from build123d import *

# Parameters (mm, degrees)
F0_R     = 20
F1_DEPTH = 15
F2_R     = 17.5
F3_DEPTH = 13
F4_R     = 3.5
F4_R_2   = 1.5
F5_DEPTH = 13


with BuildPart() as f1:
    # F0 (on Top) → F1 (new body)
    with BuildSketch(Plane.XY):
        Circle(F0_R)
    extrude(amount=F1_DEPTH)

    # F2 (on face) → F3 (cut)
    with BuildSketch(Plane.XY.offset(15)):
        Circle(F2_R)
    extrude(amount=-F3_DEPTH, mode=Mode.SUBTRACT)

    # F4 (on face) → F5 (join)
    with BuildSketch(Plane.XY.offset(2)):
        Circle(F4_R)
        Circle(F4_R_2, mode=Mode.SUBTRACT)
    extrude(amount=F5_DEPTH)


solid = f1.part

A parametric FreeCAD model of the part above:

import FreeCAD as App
import Part
import Sketcher

V = App.Vector

doc = App.newDocument("Part")
body = doc.addObject("PartDesign::Body", "Body")

# Sketch on XY plane
sketch1 = body.newObject("Sketcher::SketchObject", "Sketch")
sketch1.AttachmentSupport = (doc.getObject("XY_Plane"), [""])
sketch1.MapMode = "FlatFace"
sketch1.addGeometry(Part.Circle(V(0, 0, 0), V(0, 0, 1), 20), False)
sketch1.addConstraint([
    Sketcher.Constraint("Coincident", 0, 3, -1, 1),
    Sketcher.Constraint("Diameter", 0, 40.0),
])
pad1 = body.newObject("PartDesign::Pad", "Pad")
pad1.Profile = sketch1
pad1.Length = 15

# Sketch on XY plane
sketch2 = body.newObject("Sketcher::SketchObject", "Sketch001")
sketch2.AttachmentSupport = (doc.getObject("XY_Plane"), [""])
sketch2.MapMode = "FlatFace"
sketch2.AttachmentOffset = App.Placement(V(0, 0, 15), App.Rotation())
sketch2.addGeometry(Part.Circle(V(0, 0, 0), V(0, 0, 1), 18), False)
sketch2.addConstraint([
    Sketcher.Constraint("Coincident", 0, 3, -1, 1),
    Sketcher.Constraint("Diameter", 0, 35.0),
])
pocket1 = body.newObject("PartDesign::Pocket", "Pocket")
pocket1.Profile = sketch2
pocket1.Length = 13

# Sketch on XY plane
sketch3 = body.newObject("Sketcher::SketchObject", "Sketch002")
sketch3.AttachmentSupport = (doc.getObject("XY_Plane"), [""])
sketch3.MapMode = "FlatFace"
sketch3.AttachmentOffset = App.Placement(V(0, 0, 2), App.Rotation())
sketch3.addGeometry([
    Part.Circle(V(0, 0, 0), V(0, 0, 1), 3.5),
    Part.Circle(V(0, 0, 0), V(0, 0, 1), 1.5),
], False)
sketch3.addConstraint([
    Sketcher.Constraint("Coincident", 0, 3, -1, 1),
    Sketcher.Constraint("Coincident", 1, 3, -1, 1),
    Sketcher.Constraint("Diameter", 0, 7.0),
    Sketcher.Constraint("Diameter", 1, 3.0),
])
pad2 = body.newObject("PartDesign::Pad", "Pad001")
pad2.Profile = sketch3
pad2.Length = 13

doc.recompute()
